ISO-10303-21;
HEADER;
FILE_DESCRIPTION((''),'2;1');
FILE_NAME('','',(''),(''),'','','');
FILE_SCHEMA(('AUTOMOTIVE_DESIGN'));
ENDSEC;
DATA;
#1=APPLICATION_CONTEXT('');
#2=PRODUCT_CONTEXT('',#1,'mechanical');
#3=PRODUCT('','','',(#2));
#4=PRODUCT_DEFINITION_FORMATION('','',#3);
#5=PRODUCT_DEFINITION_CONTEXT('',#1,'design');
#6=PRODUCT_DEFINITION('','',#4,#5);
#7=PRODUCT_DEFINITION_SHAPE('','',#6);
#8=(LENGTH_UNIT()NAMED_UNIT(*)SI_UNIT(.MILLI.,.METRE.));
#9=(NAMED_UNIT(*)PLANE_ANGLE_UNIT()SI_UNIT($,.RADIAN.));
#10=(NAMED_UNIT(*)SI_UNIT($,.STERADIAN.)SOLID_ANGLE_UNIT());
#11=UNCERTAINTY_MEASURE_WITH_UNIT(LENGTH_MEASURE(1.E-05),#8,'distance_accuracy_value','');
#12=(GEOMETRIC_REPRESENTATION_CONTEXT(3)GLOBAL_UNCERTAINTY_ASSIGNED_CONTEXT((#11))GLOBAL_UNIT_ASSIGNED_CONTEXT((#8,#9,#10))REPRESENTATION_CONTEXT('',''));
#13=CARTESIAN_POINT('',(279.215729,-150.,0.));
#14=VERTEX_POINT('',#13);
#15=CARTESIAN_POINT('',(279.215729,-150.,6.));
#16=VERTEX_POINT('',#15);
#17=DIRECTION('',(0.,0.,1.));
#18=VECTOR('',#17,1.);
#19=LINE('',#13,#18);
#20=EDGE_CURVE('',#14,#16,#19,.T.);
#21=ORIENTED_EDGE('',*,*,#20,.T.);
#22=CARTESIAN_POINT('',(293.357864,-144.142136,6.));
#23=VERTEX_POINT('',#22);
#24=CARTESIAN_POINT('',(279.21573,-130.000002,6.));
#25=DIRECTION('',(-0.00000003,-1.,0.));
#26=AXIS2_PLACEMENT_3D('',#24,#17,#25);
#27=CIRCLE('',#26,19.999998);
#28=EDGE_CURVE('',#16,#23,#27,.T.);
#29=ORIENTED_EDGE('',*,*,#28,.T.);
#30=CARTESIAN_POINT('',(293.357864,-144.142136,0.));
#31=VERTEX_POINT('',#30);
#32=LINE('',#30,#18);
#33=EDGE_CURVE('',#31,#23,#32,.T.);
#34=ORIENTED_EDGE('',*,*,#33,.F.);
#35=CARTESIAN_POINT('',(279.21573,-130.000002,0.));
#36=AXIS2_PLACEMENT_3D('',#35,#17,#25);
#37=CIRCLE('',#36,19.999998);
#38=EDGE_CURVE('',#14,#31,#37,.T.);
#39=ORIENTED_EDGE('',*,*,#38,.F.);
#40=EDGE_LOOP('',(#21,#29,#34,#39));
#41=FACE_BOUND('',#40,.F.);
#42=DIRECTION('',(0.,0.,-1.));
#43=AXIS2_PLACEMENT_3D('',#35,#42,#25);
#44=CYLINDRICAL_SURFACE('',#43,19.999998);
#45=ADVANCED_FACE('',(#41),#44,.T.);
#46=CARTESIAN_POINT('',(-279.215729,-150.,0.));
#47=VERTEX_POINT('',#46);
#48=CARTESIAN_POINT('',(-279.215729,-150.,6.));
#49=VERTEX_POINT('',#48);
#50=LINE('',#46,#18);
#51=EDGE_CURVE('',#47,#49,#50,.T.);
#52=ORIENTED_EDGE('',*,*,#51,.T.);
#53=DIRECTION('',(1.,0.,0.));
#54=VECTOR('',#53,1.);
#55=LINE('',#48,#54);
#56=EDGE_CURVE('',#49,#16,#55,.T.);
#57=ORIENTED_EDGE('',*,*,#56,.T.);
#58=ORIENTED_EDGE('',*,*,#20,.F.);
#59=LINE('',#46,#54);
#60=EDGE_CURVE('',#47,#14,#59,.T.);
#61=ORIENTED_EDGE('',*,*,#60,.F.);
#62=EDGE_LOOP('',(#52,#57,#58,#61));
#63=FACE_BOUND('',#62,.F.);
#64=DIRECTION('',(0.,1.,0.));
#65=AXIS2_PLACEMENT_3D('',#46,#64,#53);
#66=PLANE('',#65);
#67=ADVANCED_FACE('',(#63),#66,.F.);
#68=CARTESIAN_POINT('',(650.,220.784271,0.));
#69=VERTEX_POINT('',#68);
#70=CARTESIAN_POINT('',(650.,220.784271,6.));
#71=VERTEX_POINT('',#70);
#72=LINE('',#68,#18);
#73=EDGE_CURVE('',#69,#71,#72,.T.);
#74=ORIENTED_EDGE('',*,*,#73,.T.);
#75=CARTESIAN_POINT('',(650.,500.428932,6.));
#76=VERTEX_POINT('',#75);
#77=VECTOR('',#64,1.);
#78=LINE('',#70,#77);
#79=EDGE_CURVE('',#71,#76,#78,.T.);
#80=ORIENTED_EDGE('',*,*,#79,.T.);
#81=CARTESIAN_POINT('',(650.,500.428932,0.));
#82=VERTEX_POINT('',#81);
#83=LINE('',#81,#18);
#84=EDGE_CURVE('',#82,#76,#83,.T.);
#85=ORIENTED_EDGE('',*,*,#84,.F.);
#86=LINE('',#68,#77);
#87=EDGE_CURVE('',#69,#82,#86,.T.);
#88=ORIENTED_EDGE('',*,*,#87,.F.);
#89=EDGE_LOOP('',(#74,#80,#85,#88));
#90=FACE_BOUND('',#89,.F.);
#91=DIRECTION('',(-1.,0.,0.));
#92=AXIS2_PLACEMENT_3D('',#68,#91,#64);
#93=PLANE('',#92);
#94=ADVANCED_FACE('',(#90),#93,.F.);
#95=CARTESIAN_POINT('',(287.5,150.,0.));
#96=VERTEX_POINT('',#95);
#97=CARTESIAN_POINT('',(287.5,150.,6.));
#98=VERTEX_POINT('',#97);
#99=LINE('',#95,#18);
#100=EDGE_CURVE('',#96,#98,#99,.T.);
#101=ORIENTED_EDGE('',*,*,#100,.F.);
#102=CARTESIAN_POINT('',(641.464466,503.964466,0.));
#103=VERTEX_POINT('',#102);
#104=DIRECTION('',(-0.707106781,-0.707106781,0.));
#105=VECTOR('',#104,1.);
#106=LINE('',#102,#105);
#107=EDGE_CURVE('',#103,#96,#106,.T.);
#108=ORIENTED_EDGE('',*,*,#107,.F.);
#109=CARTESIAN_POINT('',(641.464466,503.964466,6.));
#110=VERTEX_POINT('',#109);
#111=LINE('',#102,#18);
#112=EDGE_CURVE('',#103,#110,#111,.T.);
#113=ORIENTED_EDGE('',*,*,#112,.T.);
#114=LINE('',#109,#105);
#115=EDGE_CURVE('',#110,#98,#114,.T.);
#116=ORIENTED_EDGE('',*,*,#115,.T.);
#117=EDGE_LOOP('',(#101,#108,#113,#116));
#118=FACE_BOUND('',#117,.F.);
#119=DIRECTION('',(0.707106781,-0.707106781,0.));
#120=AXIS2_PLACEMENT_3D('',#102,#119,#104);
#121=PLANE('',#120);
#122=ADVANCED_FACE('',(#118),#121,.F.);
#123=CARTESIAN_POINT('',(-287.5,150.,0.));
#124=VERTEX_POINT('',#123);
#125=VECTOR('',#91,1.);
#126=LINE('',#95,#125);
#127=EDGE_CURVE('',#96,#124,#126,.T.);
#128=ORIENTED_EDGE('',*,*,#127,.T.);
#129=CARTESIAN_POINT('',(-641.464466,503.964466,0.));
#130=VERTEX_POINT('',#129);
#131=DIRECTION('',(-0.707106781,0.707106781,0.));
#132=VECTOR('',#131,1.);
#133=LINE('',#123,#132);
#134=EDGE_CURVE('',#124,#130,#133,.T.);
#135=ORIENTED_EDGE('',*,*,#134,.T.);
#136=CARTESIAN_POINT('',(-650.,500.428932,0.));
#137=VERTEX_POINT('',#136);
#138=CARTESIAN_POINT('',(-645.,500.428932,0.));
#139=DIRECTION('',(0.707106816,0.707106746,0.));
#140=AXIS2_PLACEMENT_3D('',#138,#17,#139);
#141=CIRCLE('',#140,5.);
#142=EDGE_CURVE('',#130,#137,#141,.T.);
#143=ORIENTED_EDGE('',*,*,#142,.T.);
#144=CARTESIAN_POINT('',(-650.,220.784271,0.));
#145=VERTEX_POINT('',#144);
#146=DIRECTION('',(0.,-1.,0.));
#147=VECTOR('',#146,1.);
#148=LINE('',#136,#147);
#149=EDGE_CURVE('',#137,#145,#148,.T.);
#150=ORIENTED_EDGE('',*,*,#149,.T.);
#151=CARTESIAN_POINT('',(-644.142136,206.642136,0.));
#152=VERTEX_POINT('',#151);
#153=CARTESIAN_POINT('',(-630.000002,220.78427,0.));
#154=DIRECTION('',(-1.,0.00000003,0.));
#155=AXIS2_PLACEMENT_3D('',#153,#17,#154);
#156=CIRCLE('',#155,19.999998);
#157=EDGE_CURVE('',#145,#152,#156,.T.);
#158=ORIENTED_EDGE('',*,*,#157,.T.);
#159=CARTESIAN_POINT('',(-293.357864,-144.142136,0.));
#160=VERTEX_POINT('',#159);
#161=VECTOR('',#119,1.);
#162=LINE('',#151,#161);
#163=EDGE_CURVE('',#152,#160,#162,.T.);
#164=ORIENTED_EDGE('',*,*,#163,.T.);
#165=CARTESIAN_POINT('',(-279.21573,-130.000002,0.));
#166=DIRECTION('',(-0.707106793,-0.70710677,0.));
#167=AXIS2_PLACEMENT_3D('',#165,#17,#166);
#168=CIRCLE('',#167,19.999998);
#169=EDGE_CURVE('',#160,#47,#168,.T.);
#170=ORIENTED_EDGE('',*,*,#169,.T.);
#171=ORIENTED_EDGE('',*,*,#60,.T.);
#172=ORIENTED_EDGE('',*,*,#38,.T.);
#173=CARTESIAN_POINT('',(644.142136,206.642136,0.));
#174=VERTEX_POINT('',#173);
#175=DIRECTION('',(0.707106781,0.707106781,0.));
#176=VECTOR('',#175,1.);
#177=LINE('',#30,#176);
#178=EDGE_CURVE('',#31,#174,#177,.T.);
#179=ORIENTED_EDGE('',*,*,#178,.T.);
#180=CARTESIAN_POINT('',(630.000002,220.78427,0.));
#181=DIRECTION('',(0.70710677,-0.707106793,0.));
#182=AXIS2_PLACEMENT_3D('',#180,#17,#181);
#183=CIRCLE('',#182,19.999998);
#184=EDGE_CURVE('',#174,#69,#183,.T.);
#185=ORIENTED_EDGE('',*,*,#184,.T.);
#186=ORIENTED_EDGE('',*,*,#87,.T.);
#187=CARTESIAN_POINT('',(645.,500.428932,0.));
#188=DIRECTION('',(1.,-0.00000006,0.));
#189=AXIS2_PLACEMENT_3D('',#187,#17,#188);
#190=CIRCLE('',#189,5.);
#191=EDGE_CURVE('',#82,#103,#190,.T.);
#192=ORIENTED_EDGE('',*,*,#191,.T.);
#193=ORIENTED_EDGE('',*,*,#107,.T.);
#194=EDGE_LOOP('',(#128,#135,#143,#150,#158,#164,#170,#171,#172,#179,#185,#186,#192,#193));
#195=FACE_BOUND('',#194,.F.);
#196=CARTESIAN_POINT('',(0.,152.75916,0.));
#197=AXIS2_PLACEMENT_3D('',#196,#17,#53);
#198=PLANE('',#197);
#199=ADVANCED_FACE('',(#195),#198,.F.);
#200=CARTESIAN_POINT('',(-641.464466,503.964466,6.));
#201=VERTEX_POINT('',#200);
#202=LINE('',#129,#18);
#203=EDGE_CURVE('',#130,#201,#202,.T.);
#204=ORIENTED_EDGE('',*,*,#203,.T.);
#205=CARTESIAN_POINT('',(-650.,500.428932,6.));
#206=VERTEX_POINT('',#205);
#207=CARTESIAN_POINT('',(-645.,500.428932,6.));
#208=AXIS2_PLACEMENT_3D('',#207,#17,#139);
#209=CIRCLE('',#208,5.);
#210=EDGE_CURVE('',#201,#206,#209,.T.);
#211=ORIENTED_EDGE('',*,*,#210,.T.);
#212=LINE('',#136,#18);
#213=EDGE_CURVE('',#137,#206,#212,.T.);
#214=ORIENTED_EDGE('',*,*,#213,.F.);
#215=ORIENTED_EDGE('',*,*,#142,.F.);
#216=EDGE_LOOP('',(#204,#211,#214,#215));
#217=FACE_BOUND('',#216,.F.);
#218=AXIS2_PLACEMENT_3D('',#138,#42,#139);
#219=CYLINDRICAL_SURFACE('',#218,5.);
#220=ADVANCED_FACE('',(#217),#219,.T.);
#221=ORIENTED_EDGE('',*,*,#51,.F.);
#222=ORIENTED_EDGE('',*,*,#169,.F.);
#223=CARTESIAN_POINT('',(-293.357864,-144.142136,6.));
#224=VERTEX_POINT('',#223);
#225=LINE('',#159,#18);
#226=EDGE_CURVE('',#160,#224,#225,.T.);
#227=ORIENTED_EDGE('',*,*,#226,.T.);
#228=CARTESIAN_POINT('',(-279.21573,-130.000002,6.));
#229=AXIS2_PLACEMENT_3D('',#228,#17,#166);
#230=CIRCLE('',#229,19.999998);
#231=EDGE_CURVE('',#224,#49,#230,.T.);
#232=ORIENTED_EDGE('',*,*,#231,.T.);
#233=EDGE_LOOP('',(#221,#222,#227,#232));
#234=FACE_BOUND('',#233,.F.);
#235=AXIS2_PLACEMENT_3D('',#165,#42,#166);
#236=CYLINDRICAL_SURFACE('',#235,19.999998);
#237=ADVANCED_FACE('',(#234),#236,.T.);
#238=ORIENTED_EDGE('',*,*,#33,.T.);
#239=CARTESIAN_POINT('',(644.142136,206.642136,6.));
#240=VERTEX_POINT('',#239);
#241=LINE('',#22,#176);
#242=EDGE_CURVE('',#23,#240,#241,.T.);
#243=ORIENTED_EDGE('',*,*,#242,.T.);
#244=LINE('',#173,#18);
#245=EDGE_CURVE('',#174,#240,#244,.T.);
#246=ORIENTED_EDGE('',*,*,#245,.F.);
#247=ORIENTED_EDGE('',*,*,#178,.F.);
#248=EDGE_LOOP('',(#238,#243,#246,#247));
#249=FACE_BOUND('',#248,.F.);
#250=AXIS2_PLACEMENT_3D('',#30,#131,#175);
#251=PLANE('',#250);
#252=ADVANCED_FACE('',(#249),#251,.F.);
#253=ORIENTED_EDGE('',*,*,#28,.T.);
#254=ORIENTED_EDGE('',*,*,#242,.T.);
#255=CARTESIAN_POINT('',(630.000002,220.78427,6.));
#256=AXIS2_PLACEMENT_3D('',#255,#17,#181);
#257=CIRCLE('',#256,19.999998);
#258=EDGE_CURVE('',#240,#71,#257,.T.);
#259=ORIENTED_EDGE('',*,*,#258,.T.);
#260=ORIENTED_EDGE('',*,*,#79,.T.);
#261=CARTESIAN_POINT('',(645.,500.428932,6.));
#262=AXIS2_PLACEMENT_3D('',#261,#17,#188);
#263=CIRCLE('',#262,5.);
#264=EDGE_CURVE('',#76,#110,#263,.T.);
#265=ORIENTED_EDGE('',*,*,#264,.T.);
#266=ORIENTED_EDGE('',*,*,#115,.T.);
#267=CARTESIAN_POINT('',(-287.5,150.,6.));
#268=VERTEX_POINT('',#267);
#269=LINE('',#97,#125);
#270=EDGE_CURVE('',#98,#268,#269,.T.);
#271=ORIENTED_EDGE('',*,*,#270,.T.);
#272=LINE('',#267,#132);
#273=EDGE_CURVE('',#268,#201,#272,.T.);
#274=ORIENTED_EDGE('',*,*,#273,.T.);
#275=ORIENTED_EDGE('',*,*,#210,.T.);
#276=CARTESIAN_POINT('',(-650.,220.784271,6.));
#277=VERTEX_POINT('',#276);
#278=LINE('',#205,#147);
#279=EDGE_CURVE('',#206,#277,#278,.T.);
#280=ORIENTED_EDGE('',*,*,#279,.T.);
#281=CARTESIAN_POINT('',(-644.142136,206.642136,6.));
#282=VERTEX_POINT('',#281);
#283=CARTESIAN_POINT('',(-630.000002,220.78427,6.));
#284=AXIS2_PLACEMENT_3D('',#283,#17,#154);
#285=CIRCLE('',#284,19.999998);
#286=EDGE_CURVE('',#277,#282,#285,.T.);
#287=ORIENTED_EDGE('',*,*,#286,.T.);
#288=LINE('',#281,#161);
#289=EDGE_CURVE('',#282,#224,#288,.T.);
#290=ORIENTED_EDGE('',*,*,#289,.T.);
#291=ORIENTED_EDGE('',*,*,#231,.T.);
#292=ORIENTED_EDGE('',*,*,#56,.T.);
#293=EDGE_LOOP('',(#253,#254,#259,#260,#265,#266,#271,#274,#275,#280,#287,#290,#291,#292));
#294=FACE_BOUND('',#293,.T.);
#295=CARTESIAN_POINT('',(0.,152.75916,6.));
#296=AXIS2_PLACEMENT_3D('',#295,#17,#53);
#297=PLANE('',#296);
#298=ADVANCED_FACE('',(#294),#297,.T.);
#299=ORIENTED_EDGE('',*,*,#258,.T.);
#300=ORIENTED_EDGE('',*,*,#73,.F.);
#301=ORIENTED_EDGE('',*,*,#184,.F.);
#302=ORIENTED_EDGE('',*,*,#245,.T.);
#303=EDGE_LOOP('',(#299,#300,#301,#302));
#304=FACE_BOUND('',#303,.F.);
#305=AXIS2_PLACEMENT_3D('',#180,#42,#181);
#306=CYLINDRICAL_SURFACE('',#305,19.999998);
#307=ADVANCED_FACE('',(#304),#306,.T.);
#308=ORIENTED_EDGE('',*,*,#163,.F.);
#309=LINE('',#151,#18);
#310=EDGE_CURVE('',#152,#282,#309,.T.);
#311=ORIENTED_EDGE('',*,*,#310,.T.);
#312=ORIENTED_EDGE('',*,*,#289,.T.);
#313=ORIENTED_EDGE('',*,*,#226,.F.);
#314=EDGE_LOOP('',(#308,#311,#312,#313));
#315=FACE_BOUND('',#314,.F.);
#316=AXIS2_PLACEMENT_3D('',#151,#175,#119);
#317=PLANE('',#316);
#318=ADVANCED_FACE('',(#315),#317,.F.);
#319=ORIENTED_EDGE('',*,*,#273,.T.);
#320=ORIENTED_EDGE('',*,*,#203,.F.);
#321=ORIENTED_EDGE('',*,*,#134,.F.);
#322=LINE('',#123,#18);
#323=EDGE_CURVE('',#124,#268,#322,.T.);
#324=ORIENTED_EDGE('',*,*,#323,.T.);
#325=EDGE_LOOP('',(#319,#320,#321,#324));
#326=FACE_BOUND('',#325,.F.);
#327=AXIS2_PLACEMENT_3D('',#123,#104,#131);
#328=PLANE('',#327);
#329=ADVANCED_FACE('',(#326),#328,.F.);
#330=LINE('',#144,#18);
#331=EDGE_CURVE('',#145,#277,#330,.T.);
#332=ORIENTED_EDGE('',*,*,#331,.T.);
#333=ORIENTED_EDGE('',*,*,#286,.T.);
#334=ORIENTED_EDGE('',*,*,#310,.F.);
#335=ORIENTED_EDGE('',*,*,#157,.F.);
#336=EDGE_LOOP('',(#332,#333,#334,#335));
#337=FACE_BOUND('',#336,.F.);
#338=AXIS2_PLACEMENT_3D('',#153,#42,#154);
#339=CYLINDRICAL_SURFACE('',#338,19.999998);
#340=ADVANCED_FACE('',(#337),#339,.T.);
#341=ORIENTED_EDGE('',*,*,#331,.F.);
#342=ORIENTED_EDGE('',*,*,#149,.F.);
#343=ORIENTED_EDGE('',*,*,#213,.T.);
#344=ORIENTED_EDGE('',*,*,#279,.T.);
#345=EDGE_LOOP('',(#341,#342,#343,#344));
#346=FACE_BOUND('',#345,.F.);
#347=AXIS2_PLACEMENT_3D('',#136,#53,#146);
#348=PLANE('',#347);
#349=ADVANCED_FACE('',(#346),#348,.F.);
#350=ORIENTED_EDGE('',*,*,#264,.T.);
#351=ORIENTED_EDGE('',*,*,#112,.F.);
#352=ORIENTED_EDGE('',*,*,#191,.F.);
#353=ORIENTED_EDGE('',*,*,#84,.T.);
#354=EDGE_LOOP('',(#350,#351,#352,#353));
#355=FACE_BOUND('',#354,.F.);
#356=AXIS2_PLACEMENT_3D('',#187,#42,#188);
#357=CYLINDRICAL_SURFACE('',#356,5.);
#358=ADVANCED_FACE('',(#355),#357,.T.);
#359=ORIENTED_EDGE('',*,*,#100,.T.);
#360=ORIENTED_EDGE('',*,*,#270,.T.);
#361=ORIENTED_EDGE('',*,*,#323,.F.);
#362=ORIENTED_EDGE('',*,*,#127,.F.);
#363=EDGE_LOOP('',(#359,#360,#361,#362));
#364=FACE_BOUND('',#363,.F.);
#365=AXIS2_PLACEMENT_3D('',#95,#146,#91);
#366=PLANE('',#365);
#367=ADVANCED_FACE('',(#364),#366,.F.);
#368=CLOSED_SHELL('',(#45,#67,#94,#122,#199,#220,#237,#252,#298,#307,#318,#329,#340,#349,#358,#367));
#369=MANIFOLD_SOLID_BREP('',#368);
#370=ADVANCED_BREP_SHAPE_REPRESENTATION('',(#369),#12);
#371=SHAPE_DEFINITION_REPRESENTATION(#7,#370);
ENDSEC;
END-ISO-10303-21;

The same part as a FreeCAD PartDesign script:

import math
import FreeCAD as App
import Part
import Sketcher

doc = App.newDocument("Part")
params = doc.addObject("Spreadsheet::Sheet", "Params")
for row, (alias, value) in enumerate([
    ("sketch1_radius", "5 mm"),
    ("sketch1_width", "575 mm"),
    ("pad1_length", "6 mm"),
], start=1):
    params.set(f"A{row}", alias)
    params.set(f"B{row}", "=" + value)
    params.setAlias(f"B{row}", alias)

body = doc.addObject("PartDesign::Body", "Body")

# Sketch on XY plane
sketch1 = doc.addObject("Sketcher::SketchObject", "Sketch")
body.addObject(sketch1)
sketch1.AttachmentSupport = (doc.XY_Plane, [""])
sketch1.MapMode = "FlatFace"
sketch1.addGeometry(Part.LineSegment(App.Vector(287.5, 150, 0), App.Vector(-287.5, 150, 0)), False)
sketch1.addGeometry(Part.LineSegment(App.Vector(-287.5, 150, 0), App.Vector(-641.5, 504, 0)), False)
sketch1.addGeometry(Part.ArcOfCircle(Part.Circle(App.Vector(-645, 500.4, 0), App.Vector(0, 0, 1), 5), math.radians(45), math.radians(180)), False)
sketch1.addGeometry(Part.LineSegment(App.Vector(-650, 500.4, 0), App.Vector(-650, 220.8, 0)), False)
sketch1.addGeometry(Part.ArcOfCircle(Part.Circle(App.Vector(-630, 220.8, 0), App.Vector(0, 0, 1), 20), math.radians(180), math.radians(225)), False)
sketch1.addGeometry(Part.LineSegment(App.Vector(-644.1, 206.6, 0), App.Vector(-293.4, -144.1, 0)), False)
sketch1.addGeometry(Part.ArcOfCircle(Part.Circle(App.Vector(-279.2, -130, 0), App.Vector(0, 0, 1), 20), math.radians(-135), math.radians(-90)), False)
sketch1.addGeometry(Part.LineSegment(App.Vector(-279.2, -150, 0), App.Vector(279.2, -150, 0)), False)
sketch1.addGeometry(Part.ArcOfCircle(Part.Circle(App.Vector(279.2, -130, 0), App.Vector(0, 0, 1), 20), math.radians(-90), math.radians(-45)), False)
sketch1.addGeometry(Part.LineSegment(App.Vector(293.4, -144.1, 0), App.Vector(644.1, 206.6, 0)), False)
sketch1.addGeometry(Part.ArcOfCircle(Part.Circle(App.Vector(630, 220.8, 0), App.Vector(0, 0, 1), 20), math.radians(-45), math.radians(0)), False)
sketch1.addGeometry(Part.LineSegment(App.Vector(650, 220.8, 0), App.Vector(650, 500.4, 0)), False)
sketch1.addGeometry(Part.ArcOfCircle(Part.Circle(App.Vector(645, 500.4, 0), App.Vector(0, 0, 1), 5), math.radians(0), math.radians(135)), False)
sketch1.addGeometry(Part.LineSegment(App.Vector(641.5, 504, 0), App.Vector(287.5, 150, 0)), False)
sketch1.addConstraint(Sketcher.Constraint("Coincident", 0, 2, 1, 1))
sketch1.addConstraint(Sketcher.Constraint("Tangent", 1, 2, 2, 1))
sketch1.addConstraint(Sketcher.Constraint("Tangent", 2, 2, 3, 1))
sketch1.addConstraint(Sketcher.Constraint("Tangent", 3, 2, 4, 1))
sketch1.addConstraint(Sketcher.Constraint("Tangent", 4, 2, 5, 1))
sketch1.addConstraint(Sketcher.Constraint("Tangent", 5, 2, 6, 1))
sketch1.addConstraint(Sketcher.Constraint("Tangent", 6, 2, 7, 1))
sketch1.addConstraint(Sketcher.Constraint("Tangent", 7, 2, 8, 1))
sketch1.addConstraint(Sketcher.Constraint("Tangent", 8, 2, 9, 1))
sketch1.addConstraint(Sketcher.Constraint("Tangent", 9, 2, 10, 1))
sketch1.addConstraint(Sketcher.Constraint("Tangent", 10, 2, 11, 1))
sketch1.addConstraint(Sketcher.Constraint("Tangent", 11, 2, 12, 1))
sketch1.addConstraint(Sketcher.Constraint("Tangent", 12, 2, 13, 1))
sketch1.addConstraint(Sketcher.Constraint("Coincident", 13, 2, 0, 1))
sketch1.addConstraint(Sketcher.Constraint("Horizontal", 0))
sketch1.addConstraint(Sketcher.Constraint("Vertical", 3))
sketch1.addConstraint(Sketcher.Constraint("Horizontal", 7))
sketch1.addConstraint(Sketcher.Constraint("Vertical", 11))
sketch1.addConstraint(Sketcher.Constraint("Equal", 4, 6))
sketch1.addConstraint(Sketcher.Constraint("Equal", 6, 8))
sketch1.addConstraint(Sketcher.Constraint("Equal", 8, 10))
sketch1.addConstraint(Sketcher.Constraint("Equal", 2, 12))
sketch1.addConstraint(Sketcher.Constraint("Symmetric", 4, 3, 10, 3, -2))
sketch1.addConstraint(Sketcher.Constraint("Parallel", 1, 5))
sketch1.addConstraint(Sketcher.Constraint("Perpendicular", 5, 9))
sketch1.addConstraint(Sketcher.Constraint("Parallel", 9, 13))
sketch1.addConstraint(Sketcher.Constraint("Horizontal", 2, 3, 12, 3))
sketch1.addConstraint(Sketcher.Constraint("Equal", 5, 9))
sketch1.addConstraint(Sketcher.Constraint("Radius", 2, 5.0))
sketch1.addConstraint(Sketcher.Constraint("DistanceX", 0, 2, 0, 1, 575.0))
sketch1.addConstraint(Sketcher.Constraint("DistanceX", 2, 3, -1, 1, 645.0))
sketch1.addConstraint(Sketcher.Constraint("DistanceY", -1, 1, 0, 2, 150.0))
sketch1.addConstraint(Sketcher.Constraint("DistanceY", 6, 2, -1, 1, 150.0))
sketch1.addConstraint(Sketcher.Constraint("Radius", 4, 19.999998))
sketch1.addConstraint(Sketcher.Constraint("DistanceX", 7, 1, 7, 2, 558.431458))
sketch1.setExpression("Constraints[28]", "Params.sketch1_radius")
sketch1.setExpression("Constraints[29]", "Params.sketch1_width")
pad1 = doc.addObject("PartDesign::Pad", "Pad")
body.addObject(pad1)
pad1.Profile = sketch1
pad1.setExpression("Length", "Params.pad1_length")

doc.recompute()
